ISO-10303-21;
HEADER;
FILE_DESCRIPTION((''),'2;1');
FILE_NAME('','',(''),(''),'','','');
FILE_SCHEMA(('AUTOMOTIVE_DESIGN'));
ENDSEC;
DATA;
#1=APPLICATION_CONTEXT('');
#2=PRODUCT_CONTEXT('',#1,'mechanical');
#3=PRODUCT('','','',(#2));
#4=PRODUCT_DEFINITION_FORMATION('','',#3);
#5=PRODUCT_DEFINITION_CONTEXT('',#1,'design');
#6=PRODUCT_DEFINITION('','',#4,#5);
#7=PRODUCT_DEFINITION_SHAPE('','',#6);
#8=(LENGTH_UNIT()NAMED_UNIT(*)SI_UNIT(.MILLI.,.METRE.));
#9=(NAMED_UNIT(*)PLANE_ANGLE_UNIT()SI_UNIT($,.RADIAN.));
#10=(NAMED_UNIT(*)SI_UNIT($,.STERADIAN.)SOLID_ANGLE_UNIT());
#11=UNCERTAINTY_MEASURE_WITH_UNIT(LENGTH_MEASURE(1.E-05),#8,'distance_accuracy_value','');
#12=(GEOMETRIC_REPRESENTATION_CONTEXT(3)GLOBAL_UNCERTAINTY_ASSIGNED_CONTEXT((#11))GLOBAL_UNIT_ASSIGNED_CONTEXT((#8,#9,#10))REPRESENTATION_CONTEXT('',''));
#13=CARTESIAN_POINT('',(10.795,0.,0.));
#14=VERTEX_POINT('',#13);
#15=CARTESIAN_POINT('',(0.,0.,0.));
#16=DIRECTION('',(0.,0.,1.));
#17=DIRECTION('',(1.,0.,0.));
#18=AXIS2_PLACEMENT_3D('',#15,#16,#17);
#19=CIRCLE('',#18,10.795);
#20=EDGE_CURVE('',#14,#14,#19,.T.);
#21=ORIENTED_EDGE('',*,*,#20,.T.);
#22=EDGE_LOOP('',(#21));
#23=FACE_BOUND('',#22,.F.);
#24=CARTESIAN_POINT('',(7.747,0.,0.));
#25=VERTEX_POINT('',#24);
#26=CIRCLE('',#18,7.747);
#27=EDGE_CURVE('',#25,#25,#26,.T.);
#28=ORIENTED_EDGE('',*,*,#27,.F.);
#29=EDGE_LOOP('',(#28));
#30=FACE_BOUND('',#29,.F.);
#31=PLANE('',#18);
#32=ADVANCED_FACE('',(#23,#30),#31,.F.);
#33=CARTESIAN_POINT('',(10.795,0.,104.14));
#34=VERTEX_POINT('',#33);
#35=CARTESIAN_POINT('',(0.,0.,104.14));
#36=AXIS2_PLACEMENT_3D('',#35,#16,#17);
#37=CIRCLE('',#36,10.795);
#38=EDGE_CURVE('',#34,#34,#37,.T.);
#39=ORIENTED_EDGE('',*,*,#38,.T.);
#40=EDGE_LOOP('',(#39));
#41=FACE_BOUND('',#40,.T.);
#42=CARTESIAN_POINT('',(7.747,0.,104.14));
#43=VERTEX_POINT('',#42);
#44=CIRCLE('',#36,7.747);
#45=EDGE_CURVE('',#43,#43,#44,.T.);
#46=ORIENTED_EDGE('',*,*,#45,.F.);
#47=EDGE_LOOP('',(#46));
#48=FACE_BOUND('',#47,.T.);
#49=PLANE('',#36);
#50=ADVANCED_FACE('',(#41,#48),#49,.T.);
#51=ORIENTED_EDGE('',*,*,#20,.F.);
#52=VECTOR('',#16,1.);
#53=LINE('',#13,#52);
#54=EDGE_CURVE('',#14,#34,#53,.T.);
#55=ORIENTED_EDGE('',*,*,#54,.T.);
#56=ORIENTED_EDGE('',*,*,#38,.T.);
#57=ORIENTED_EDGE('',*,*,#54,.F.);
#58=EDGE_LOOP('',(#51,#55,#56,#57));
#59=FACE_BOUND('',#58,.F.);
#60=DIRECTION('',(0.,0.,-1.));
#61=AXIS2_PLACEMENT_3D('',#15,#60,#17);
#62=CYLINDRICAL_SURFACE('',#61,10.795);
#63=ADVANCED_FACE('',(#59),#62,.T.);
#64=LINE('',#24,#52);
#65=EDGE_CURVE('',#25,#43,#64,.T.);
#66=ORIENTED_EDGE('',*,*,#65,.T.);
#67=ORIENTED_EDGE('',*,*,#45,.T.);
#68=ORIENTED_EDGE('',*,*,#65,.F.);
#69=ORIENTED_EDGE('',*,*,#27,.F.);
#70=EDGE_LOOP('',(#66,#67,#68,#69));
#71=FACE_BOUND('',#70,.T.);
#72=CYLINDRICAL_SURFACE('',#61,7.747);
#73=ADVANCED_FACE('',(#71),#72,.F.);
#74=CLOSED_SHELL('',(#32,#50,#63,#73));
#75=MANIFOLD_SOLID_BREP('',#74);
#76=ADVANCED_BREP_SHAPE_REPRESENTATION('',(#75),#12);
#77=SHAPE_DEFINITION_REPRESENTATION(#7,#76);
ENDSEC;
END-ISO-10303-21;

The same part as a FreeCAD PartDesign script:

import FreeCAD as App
import Part
import Sketcher
from FreeCAD import Vector
Q = App.Units.Quantity

doc = App.newDocument("Part")
body = doc.addObject("PartDesign::Body", "Body")

# Sketch on XY plane
sketch1 = body.newObject("Sketcher::SketchObject", "Sketch")
sketch1.AttachmentSupport = (doc.getObject("XY_Plane"), [""])
sketch1.MapMode = "FlatFace"
sketch1.addGeometry([
    Part.Circle(Vector(0, 0, 0), Vector(0, 0, 1), 11),
    Part.Circle(Vector(0, 0, 0), Vector(0, 0, 1), 8),
], False)
sketch1.addConstraint([
    Sketcher.Constraint("Coincident", 0, 3, -1, 1),
    Sketcher.Constraint("Coincident", 1, 3, -1, 1),
    Sketcher.Constraint("Diameter", 0, Q("0.85 in")),
    Sketcher.Constraint("Diameter", 1, Q("0.61 in")),
])
pad1 = body.newObject("PartDesign::Pad", "Pad")
pad1.Profile = sketch1
pad1.Length = Q("4.1 in")

doc.recompute()
